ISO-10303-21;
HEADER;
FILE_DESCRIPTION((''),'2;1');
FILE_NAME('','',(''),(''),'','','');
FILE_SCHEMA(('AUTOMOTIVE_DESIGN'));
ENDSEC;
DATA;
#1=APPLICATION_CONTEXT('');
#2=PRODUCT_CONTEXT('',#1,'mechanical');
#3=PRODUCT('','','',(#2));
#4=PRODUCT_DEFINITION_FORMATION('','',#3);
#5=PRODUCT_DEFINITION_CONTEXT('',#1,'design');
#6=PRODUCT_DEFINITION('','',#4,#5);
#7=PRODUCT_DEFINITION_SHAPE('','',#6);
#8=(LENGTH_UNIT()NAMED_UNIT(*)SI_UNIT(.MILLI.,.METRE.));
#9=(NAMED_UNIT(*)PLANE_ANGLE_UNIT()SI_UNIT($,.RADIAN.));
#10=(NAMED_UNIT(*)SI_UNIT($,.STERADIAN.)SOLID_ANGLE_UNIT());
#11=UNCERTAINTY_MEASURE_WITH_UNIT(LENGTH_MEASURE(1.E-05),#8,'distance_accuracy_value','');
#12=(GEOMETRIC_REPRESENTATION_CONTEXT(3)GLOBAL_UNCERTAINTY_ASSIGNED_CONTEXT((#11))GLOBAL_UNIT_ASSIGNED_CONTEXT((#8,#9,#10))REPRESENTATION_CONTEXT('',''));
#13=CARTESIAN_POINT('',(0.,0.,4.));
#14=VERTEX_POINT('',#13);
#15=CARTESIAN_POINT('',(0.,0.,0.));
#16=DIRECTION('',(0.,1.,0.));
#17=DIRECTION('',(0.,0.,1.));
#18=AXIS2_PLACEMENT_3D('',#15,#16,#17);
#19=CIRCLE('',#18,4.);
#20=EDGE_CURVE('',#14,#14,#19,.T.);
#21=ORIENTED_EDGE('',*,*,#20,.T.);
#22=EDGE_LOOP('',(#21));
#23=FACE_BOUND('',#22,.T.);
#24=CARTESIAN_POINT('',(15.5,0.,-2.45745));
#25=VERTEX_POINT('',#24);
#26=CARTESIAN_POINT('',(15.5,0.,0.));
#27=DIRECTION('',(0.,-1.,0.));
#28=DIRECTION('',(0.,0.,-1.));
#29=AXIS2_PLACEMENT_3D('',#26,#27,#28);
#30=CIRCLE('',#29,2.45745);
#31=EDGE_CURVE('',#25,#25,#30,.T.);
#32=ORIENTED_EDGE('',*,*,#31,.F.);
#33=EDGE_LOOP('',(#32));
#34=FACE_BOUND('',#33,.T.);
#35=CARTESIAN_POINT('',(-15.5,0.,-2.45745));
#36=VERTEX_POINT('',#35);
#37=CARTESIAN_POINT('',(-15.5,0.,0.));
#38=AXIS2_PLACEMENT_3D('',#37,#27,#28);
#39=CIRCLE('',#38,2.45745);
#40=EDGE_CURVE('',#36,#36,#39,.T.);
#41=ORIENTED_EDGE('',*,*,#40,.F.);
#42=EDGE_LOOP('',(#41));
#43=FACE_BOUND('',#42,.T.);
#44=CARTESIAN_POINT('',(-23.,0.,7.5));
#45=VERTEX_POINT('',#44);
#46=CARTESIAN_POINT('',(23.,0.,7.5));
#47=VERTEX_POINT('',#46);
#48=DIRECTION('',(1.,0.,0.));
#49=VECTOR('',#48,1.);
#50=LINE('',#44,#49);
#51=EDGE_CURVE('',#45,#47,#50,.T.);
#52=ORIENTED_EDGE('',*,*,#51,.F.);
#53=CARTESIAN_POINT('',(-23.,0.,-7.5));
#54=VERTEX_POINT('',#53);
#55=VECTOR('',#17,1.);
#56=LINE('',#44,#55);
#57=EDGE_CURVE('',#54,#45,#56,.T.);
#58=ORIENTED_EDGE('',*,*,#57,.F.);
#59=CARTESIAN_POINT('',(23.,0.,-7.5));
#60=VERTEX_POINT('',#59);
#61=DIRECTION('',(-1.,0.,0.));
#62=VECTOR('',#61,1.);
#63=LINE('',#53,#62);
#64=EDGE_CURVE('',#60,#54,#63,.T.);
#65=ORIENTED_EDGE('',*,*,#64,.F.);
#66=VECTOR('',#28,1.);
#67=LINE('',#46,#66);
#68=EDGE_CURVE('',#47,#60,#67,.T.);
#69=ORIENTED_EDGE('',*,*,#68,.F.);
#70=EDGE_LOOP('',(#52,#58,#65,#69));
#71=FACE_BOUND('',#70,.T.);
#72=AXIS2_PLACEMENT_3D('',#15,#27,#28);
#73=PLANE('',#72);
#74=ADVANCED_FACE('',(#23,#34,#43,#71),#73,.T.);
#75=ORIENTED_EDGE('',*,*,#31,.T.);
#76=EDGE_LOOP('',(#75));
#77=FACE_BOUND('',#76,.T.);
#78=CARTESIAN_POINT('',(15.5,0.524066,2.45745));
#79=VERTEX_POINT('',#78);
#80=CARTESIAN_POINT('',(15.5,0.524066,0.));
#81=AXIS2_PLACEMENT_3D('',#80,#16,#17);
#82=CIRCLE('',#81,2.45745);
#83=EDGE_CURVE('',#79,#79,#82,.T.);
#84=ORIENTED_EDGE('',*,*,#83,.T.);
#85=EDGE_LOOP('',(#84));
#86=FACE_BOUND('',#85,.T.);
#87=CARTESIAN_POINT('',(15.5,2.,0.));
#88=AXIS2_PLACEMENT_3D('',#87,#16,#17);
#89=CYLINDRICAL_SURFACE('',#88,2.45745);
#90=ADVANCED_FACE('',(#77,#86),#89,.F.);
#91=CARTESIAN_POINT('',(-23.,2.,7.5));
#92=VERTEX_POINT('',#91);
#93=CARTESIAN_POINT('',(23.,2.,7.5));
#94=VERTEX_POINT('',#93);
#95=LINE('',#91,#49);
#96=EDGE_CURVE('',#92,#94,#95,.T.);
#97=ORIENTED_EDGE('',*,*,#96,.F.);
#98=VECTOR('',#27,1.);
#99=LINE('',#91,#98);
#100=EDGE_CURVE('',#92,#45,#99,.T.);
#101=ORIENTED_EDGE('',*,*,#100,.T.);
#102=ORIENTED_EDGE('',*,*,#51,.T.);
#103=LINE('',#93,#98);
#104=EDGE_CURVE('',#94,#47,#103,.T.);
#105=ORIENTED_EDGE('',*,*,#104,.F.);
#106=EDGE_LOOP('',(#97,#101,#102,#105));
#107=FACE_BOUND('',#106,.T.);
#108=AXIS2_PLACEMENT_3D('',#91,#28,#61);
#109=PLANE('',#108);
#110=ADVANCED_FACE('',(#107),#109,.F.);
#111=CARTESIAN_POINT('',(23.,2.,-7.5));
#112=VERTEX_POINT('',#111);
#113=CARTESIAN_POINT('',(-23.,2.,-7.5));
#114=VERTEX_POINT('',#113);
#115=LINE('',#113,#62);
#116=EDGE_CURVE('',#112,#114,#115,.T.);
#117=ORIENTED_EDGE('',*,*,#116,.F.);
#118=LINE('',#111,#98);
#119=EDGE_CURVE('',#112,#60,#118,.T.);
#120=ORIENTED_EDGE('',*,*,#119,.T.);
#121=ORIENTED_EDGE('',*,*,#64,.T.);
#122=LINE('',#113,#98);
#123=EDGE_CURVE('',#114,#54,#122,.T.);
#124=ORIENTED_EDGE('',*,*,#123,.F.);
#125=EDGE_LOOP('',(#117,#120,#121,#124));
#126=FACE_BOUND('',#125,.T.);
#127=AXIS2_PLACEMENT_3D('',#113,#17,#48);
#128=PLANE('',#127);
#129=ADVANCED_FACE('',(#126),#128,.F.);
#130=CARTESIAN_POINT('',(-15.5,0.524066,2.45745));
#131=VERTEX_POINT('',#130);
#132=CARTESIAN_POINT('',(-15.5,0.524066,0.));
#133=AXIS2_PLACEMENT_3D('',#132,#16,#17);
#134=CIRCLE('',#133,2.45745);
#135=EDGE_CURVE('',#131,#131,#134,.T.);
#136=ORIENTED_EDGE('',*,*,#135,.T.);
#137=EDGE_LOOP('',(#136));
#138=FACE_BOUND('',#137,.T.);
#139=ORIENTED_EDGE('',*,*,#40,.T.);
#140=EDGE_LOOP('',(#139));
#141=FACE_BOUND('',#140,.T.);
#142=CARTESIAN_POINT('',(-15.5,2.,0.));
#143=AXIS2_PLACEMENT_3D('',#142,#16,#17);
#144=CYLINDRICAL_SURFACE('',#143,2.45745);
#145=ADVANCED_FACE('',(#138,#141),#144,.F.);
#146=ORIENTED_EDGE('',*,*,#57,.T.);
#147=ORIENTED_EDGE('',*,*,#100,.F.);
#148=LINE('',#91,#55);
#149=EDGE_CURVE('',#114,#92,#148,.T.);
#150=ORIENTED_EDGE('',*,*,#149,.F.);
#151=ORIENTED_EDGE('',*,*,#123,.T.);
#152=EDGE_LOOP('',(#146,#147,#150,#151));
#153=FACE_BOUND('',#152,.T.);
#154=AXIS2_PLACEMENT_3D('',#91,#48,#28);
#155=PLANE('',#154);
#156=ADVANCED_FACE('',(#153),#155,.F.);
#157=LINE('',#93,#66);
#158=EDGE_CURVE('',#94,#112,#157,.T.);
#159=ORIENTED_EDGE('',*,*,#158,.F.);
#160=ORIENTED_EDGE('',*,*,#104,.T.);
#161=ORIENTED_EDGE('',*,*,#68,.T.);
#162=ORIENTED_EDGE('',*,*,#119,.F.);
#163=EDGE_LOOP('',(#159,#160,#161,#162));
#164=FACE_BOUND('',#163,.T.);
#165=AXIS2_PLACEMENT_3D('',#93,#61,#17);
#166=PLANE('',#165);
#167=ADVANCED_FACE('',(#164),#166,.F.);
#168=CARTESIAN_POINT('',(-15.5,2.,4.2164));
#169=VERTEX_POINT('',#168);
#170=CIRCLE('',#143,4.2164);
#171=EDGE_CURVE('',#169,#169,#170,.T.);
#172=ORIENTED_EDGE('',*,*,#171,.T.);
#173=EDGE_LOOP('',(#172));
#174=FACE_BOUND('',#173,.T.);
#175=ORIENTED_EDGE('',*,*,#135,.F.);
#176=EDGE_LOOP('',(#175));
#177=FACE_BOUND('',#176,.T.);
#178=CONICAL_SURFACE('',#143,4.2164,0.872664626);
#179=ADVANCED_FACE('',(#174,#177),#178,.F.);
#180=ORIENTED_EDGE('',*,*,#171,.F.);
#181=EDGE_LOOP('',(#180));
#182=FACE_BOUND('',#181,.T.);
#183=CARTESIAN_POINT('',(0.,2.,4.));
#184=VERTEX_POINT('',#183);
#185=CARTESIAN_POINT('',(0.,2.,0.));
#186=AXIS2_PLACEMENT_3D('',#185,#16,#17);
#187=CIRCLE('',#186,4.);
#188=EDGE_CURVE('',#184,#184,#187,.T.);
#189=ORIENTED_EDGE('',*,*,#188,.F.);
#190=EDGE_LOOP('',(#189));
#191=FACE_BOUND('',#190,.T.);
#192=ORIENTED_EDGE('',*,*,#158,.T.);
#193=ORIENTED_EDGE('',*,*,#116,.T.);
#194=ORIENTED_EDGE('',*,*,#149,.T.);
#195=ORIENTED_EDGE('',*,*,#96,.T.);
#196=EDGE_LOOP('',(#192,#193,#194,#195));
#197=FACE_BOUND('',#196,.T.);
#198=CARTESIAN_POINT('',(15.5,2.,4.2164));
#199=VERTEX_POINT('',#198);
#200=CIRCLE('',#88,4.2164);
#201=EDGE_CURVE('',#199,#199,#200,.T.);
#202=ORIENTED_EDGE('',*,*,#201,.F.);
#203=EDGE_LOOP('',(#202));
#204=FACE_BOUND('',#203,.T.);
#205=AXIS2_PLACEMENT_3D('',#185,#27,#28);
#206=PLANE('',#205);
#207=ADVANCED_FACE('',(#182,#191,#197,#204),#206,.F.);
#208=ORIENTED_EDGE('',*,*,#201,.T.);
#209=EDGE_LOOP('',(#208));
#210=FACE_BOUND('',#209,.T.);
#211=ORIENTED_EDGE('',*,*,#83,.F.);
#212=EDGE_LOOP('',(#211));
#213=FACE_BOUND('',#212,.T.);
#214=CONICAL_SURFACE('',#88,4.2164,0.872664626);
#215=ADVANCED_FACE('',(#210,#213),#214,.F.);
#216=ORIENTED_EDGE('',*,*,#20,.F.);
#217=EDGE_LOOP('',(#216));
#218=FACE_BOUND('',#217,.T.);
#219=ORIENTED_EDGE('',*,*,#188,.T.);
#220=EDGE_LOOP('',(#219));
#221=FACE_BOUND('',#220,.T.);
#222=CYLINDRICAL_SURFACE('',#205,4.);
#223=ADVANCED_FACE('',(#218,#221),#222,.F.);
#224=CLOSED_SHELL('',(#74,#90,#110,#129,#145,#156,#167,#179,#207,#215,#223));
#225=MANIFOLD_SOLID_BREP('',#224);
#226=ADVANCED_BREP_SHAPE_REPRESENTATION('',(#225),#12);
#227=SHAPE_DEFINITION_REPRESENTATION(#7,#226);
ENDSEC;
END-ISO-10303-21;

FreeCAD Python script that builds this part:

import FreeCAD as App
import Part
import Sketcher

V = App.Vector
Q = App.Units.Quantity

doc = App.newDocument("Part")
body = doc.addObject("PartDesign::Body", "Body")

# Sketch on XZ plane
sketch1 = body.newObject("Sketcher::SketchObject", "Sketch")
sketch1.AttachmentSupport = (doc.getObject("XZ_Plane"), [""])
sketch1.MapMode = "FlatFace"
sketch1.addGeometry(Part.LineSegment(V(-23, -7.5, 0), V(-23, 7.5, 0)), False)
sketch1.addGeometry(Part.LineSegment(V(-23, 7.5, 0), V(23, 7.5, 0)), False)
sketch1.addGeometry(Part.LineSegment(V(23, 7.5, 0), V(23, -7.5, 0)), False)
sketch1.addGeometry(Part.LineSegment(V(23, -7.5, 0), V(-23, -7.5, 0)), False)
sketch1.addGeometry(Part.Circle(V(0, 0, 0), V(0, 0, 1), 4), False)
sketch1.addConstraint(Sketcher.Constraint("Coincident", 0, 2, 1, 1))
sketch1.addConstraint(Sketcher.Constraint("Coincident", 1, 2, 2, 1))
sketch1.addConstraint(Sketcher.Constraint("Coincident", 2, 2, 3, 1))
sketch1.addConstraint(Sketcher.Constraint("Coincident", 3, 2, 0, 1))
sketch1.addConstraint(Sketcher.Constraint("Vertical", 0))
sketch1.addConstraint(Sketcher.Constraint("Horizontal", 1))
sketch1.addConstraint(Sketcher.Constraint("Vertical", 2))
sketch1.addConstraint(Sketcher.Constraint("Horizontal", 3))
sketch1.addConstraint(Sketcher.Constraint("Coincident", 4, 3, -1, 1))
sketch1.addConstraint(Sketcher.Constraint("Symmetric", 0, 2, 2, 2, -1, 1))
sketch1.addConstraint(Sketcher.Constraint("Diameter", 4, Q("8 mm")))
sketch1.addConstraint(Sketcher.Constraint("DistanceX", 1, 1, 1, 2, Q("46 mm")))
sketch1.addConstraint(Sketcher.Constraint("DistanceY", 0, 1, 0, 2, Q("15 mm")))
pad1 = body.newObject("PartDesign::Pad", "Pad")
pad1.Profile = sketch1
pad1.Length = 2
pad1.Reversed = True

# Sketch on XZ plane
sketch2 = body.newObject("Sketcher::SketchObject", "Sketch001")
sketch2.AttachmentSupport = (doc.getObject("XZ_Plane"), [""])
sketch2.MapMode = "FlatFace"
sketch2.AttachmentOffset = App.Placement(V(0, 0, -2), App.Rotation())
sketch2.addGeometry(Part.Circle(V(-15.5, 0, 0), V(0, 0, 1), 2.5), False)
sketch2.addGeometry(Part.Circle(V(15.5, 0, 0), V(0, 0, 1), 2.5), False)
sketch2.addConstraint(Sketcher.Constraint("Equal", 0, 1))
sketch2.addConstraint(Sketcher.Constraint("Symmetric", 0, 3, 1, 3, -1, 1))
sketch2.addConstraint(Sketcher.Constraint("PointOnObject", 0, 3, -1))
sketch2.addConstraint(Sketcher.Constraint("DistanceX", 0, 3, 1, 3, Q("31 mm")))
sketch2.addConstraint(Sketcher.Constraint("Diameter", 0, Q("4.9149 mm")))
doc.recompute()
hole = body.newObject("PartDesign::Hole", "Hole")
hole.Profile = sketch2
hole.ThreadType = "None"
hole.Diameter = 4.9149
hole.DepthType = "Dimension"
hole.Depth = 25
hole.DrillPoint = "Angled"
hole.DrillPointAngle = 118
hole.HoleCutType = "Countersink"
hole.HoleCutDiameter = 8.4328
hole.HoleCutCountersinkAngle = 100
hole.Reversed = True

doc.recompute()
